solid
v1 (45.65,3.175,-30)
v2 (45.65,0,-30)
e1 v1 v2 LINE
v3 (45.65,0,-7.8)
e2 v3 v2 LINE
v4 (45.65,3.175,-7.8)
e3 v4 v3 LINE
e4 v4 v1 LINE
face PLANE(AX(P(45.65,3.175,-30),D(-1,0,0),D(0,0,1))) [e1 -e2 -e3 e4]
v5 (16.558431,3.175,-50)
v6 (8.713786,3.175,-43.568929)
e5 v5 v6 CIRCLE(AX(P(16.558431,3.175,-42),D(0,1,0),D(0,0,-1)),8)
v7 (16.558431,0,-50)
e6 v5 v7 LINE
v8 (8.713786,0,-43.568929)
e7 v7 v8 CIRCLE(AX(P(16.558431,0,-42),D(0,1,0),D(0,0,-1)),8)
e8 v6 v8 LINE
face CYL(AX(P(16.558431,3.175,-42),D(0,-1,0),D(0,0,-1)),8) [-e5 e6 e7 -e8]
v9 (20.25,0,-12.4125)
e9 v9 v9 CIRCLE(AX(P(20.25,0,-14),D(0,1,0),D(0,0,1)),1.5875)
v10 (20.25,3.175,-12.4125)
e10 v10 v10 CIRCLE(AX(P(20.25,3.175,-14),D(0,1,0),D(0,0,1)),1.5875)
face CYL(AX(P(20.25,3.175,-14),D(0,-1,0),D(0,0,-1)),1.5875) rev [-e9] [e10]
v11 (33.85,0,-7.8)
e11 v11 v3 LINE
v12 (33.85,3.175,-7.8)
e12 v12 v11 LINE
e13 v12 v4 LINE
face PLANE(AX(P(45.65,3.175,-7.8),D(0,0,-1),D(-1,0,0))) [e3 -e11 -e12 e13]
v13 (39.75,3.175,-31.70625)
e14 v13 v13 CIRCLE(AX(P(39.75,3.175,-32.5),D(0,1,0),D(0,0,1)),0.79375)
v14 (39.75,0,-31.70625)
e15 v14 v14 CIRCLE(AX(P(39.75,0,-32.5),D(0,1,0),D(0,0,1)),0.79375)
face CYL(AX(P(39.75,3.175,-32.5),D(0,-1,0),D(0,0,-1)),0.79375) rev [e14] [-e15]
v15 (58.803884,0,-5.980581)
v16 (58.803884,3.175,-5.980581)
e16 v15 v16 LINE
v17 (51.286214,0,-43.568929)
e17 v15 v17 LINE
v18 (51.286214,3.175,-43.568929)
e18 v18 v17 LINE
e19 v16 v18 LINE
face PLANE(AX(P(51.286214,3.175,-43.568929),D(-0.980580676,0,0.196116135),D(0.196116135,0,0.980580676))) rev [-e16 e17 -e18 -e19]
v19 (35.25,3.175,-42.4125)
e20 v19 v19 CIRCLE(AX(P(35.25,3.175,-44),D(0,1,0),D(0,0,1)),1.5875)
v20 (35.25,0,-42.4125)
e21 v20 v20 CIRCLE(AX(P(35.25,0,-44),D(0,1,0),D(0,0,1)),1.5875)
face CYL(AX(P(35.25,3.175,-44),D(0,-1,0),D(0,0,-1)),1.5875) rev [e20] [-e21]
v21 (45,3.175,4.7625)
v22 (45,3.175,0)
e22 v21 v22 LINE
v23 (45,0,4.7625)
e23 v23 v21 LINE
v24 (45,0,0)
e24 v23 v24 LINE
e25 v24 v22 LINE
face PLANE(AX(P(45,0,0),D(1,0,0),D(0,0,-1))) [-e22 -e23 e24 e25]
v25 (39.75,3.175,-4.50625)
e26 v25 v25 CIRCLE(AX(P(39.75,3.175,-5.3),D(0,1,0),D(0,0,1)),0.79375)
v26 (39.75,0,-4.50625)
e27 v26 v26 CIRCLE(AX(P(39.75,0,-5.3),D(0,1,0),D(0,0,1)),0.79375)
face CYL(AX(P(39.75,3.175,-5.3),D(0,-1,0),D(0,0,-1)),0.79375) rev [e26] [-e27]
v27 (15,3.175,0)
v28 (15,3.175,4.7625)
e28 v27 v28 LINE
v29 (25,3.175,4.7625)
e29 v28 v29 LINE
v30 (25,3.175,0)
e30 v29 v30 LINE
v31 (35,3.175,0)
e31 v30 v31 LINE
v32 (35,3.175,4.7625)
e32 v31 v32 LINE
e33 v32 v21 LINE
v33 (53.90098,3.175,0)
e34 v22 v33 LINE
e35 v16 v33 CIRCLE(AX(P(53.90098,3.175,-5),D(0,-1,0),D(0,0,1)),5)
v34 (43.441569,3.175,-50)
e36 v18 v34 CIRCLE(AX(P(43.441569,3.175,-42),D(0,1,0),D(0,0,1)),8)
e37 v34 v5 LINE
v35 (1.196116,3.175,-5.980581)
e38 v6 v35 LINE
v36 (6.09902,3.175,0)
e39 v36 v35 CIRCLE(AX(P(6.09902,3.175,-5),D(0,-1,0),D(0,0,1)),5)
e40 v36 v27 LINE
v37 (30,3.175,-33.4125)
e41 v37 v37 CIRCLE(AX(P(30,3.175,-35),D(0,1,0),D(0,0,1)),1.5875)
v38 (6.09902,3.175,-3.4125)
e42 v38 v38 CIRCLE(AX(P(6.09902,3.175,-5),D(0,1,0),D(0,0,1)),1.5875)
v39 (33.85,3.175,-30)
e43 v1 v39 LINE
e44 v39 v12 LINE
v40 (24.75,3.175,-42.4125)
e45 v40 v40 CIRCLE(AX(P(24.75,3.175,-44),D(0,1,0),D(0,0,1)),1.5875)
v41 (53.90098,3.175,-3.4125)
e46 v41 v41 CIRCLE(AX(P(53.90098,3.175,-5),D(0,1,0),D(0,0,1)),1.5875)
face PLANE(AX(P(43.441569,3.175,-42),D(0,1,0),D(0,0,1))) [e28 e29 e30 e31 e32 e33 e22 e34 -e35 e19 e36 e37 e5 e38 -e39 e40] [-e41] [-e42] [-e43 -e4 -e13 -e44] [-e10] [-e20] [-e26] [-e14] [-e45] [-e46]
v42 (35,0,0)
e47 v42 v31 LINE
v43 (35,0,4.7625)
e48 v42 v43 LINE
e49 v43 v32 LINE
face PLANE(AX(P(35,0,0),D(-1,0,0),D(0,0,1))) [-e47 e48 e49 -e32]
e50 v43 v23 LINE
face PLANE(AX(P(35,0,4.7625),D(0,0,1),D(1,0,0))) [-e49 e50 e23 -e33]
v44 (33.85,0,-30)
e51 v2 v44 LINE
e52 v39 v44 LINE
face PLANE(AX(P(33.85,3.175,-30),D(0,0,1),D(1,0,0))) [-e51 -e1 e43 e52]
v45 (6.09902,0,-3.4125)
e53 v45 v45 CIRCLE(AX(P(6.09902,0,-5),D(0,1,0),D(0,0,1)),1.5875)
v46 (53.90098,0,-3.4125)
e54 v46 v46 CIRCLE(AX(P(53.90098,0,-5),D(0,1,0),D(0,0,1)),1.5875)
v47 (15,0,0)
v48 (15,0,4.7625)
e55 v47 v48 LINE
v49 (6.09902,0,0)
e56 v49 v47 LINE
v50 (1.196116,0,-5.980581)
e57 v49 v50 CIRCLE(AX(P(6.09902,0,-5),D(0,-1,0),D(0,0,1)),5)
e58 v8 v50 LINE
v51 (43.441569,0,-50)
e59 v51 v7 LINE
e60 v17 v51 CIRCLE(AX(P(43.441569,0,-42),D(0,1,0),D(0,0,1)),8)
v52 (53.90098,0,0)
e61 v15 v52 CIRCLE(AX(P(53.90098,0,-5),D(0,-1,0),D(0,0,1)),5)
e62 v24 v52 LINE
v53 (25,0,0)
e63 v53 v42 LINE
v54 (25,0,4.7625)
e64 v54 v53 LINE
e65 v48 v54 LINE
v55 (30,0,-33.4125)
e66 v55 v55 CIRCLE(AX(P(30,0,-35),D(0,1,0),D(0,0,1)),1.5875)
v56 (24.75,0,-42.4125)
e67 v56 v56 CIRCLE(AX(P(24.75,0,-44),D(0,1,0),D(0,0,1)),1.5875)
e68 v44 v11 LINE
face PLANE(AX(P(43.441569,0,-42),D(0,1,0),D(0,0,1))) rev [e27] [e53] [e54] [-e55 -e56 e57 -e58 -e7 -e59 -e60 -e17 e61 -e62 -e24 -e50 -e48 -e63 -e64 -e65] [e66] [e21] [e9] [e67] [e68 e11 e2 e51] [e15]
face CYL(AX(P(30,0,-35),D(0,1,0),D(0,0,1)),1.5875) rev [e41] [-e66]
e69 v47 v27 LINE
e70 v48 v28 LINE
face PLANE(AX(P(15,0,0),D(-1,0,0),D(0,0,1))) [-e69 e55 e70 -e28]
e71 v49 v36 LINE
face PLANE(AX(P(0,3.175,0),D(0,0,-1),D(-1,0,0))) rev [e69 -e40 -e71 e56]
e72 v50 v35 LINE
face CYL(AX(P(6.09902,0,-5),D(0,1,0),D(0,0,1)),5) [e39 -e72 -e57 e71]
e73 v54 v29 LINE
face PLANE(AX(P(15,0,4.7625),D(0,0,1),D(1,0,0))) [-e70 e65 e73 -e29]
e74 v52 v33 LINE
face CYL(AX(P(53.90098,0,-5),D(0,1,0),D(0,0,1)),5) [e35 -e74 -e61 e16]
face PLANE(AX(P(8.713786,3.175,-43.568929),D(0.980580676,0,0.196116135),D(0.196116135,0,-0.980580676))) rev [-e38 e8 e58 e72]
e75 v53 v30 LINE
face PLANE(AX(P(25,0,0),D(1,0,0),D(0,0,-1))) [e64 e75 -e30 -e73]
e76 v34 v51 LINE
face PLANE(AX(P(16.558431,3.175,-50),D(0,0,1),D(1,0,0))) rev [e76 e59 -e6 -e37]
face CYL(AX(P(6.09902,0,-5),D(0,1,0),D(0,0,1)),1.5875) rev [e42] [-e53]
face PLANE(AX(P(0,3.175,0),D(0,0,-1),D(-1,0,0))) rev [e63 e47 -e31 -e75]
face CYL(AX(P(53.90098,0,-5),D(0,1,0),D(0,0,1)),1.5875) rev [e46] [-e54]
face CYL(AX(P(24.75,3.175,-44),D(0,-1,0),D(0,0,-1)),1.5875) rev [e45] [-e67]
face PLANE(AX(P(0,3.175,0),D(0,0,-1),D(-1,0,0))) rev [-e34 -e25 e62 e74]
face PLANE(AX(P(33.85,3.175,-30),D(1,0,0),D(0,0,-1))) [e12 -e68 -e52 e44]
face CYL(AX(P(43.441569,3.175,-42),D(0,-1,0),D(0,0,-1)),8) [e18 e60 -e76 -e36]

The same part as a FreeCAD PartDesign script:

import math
import FreeCAD as App
import Part
import Sketcher


def add_polygon(sketch, points):
    """Adds a closed chain of lines whose ends are joined by coincident constraints."""
    first, n = sketch.GeometryCount, len(points)
    for a, b in zip(points, points[1:] + points[:1]):
        sketch.addGeometry(Part.LineSegment(App.Vector(*a, 0), App.Vector(*b, 0)), False)
    for i in range(n):
        sketch.addConstraint(Sketcher.Constraint("Coincident", first + i, 2, first + (i + 1) % n, 1))

doc = App.newDocument("Part")
body = doc.addObject("PartDesign::Body", "Body")

sketch1 = doc.addObject("Sketcher::SketchObject", "Sketch")
body.addObject(sketch1)
sketch1.AttachmentSupport = (doc.XZ_Plane, [""])
sketch1.MapMode = "FlatFace"
sketch1.addGeometry(Part.LineSegment(App.Vector(8.7, -43.6, 0), App.Vector(0, 0, 0)), False)
sketch1.addGeometry(Part.LineSegment(App.Vector(0, 0, 0), App.Vector(60, 0, 0)), False)
sketch1.addGeometry(Part.LineSegment(App.Vector(60, 0, 0), App.Vector(51.3, -43.6, 0)), False)
sketch1.addGeometry(Part.ArcOfCircle(Part.Circle(App.Vector(43.4, -42, 0), App.Vector(0, 0, 1), 8), math.radians(-90), math.radians(-11)), False)
sketch1.addGeometry(Part.LineSegment(App.Vector(43.4, -50, 0), App.Vector(16.6, -50, 0)), False)
sketch1.addGeometry(Part.ArcOfCircle(Part.Circle(App.Vector(16.6, -42, 0), App.Vector(0, 0, 1), 8), math.radians(-169), math.radians(-90)), False)
sketch1.addGeometry(Part.Circle(App.Vector(20.2, -14, 0), App.Vector(0, 0, 1), 1.6), False)
sketch1.addGeometry(Part.Circle(App.Vector(39.8, -5.3, 0), App.Vector(0, 0, 1), 0.8), False)
add_polygon(sketch1, [(45.6, -7.8), (33.9, -7.8), (33.9, -30), (45.6, -30)])
sketch1.addGeometry(Part.Circle(App.Vector(24.8, -44, 0), App.Vector(0, 0, 1), 1.6), False)
sketch1.addGeometry(Part.Circle(App.Vector(39.8, -32.5, 0), App.Vector(0, 0, 1), 0.8), False)
sketch1.addGeometry(Part.Circle(App.Vector(35.2, -44, 0), App.Vector(0, 0, 1), 1.6), False)
sketch1.addConstraint([
    Sketcher.Constraint("Coincident", 0, 2, 1, 1),
    Sketcher.Constraint("Coincident", 1, 2, 2, 1),
    Sketcher.Constraint("Tangent", 2, 2, 3, 2),
    Sketcher.Constraint("Tangent", 3, 1, 4, 1),
    Sketcher.Constraint("Tangent", 4, 2, 5, 2),
    Sketcher.Constraint("Tangent", 5, 1, 0, 1),
    Sketcher.Constraint("Horizontal", 1),
    Sketcher.Constraint("Horizontal", 4),
    Sketcher.Constraint("Horizontal", 8),
    Sketcher.Constraint("Vertical", 9),
    Sketcher.Constraint("Horizontal", 10),
    Sketcher.Constraint("Vertical", 11),
    Sketcher.Constraint("Coincident", 0, 2, -1, 1),
    Sketcher.Constraint("Equal", 3, 5),
    Sketcher.Constraint("Equal", 6, 12),
    Sketcher.Constraint("Equal", 7, 13),
    Sketcher.Constraint("Equal", 12, 14),
    Sketcher.Constraint("Horizontal", 12, 3, 14, 3),
    Sketcher.Constraint("Horizontal", 2, 2, 5, 1),
    Sketcher.Constraint("Vertical", 7, 3, 13, 3),
    Sketcher.Constraint("Radius", 3, 8.0),
    Sketcher.Constraint("DistanceX", 1, 1, 1, 2, 60.0),
    Sketcher.Constraint("Diameter", 6, 3.175),
    Sketcher.Constraint("DistanceX", 8, 2, 8, 1, 11.8),
    Sketcher.Constraint("DistanceY", 9, 2, 9, 1, 22.2),
    Sketcher.Constraint("DistanceY", 3, 3, -1, 1, 42.0),
    Sketcher.Constraint("DistanceY", 6, 3, -1, 1, 14.0),
    Sketcher.Constraint("DistanceY", 12, 3, -1, 1, 44.0),
    Sketcher.Constraint("DistanceY", 9, 2, -1, 1, 30.0),
    Sketcher.Constraint("DistanceX", 12, 3, 7, 3, 15.0),
    Sketcher.Constraint("DistanceX", 6, 3, 14, 3, 15.0),
    Sketcher.Constraint("Diameter", 7, 1.5875),
    Sketcher.Constraint("DistanceY", 7, 3, -1, 1, 5.3),
    Sketcher.Constraint("DistanceY", 13, 3, -1, 1, 32.5),
    Sketcher.Constraint("DistanceX", 6, 3, 7, 3, 19.5),
    Sketcher.Constraint("DistanceX", 8, 2, 7, 3, 5.9),
    Sketcher.Constraint("DistanceX", -1, 1, 6, 3, 20.25),
    Sketcher.Constraint("DistanceX", 4, 2, 4, 1, 26.883138),
])
pad1 = doc.addObject("PartDesign::Pad", "Pad")
body.addObject(pad1)
pad1.Profile = sketch1
pad1.Length = 3.175
pad1.Reversed = True

sketch2 = doc.addObject("Sketcher::SketchObject", "Sketch001")
body.addObject(sketch2)
sketch2.AttachmentSupport = (doc.XZ_Plane, [""])
sketch2.MapMode = "FlatFace"
sketch2.AttachmentOffset = App.Placement(App.Vector(0, 0, -3.175), App.Rotation())
sketch2.addGeometry([
    Part.Circle(App.Vector(30, -35, 0), App.Vector(0, 0, 1), 1.6),
    Part.Circle(App.Vector(6.1, -5, 0), App.Vector(0, 0, 1), 1.6),
    Part.Circle(App.Vector(53.9, -5, 0), App.Vector(0, 0, 1), 1.6),
    Part.LineSegment(App.Vector(53.9, 0, 0), App.Vector(60, 0, 0)),
    Part.LineSegment(App.Vector(60, 0, 0), App.Vector(58.8, -6, 0)),
    Part.ArcOfCircle(Part.Circle(App.Vector(53.9, -5, 0), App.Vector(0, 0, 1), 5), math.radians(-11), math.radians(90)),
    Part.LineSegment(App.Vector(1.2, -6, 0), App.Vector(0, 0, 0)),
    Part.LineSegment(App.Vector(0, 0, 0), App.Vector(6.1, 0, 0)),
    Part.ArcOfCircle(Part.Circle(App.Vector(6.1, -5, 0), App.Vector(0, 0, 1), 5), math.radians(90), math.radians(191)),
], False)
sketch2.addConstraint([
    Sketcher.Constraint("Coincident", 3, 2, 4, 1),
    Sketcher.Constraint("Tangent", 4, 2, 5, 1),
    Sketcher.Constraint("Tangent", 5, 2, 3, 1),
    Sketcher.Constraint("Coincident", 6, 2, 7, 1),
    Sketcher.Constraint("Tangent", 7, 2, 8, 1),
    Sketcher.Constraint("Tangent", 8, 2, 6, 1),
    Sketcher.Constraint("Horizontal", 3),
    Sketcher.Constraint("Horizontal", 7),
    Sketcher.Constraint("Coincident", 6, 2, -1, 1),
    Sketcher.Constraint("Coincident", 5, 3, 2, 3),
    Sketcher.Constraint("Coincident", 8, 3, 1, 3),
    Sketcher.Constraint("Equal", 0, 1),
    Sketcher.Constraint("Equal", 1, 2),
    Sketcher.Constraint("Equal", 5, 8),
    Sketcher.Constraint("PointOnObject", 3, 2, -1),
    Sketcher.Constraint("Horizontal", 4, 2, 8, 2),
    Sketcher.Constraint("Radius", 5, 5.0),
    Sketcher.Constraint("Diameter", 0, 3.175),
    Sketcher.Constraint("DistanceX", -1, 1, 0, 3, 30.0),
    Sketcher.Constraint("DistanceY", 0, 3, -1, 1, 35.0),
    Sketcher.Constraint("DistanceX", -1, 1, 3, 2, 60.0),
    Sketcher.Constraint("DistanceX", 3, 1, 3, 2, 6.09902),
])
pocket1 = doc.addObject("PartDesign::Pocket", "Pocket")
body.addObject(pocket1)
pocket1.Profile = sketch2
pocket1.Length = 3.175
pocket1.Reversed = True

sketch3 = doc.addObject("Sketcher::SketchObject", "Sketch002")
body.addObject(sketch3)
sketch3.AttachmentSupport = (doc.XZ_Plane, [""])
sketch3.MapMode = "FlatFace"
sketch3.AttachmentOffset = App.Placement(App.Vector(0, 0, -3.175), App.Rotation())
add_polygon(sketch3, [(15, 0), (15, 4.8), (25, 4.8), (25, 0)])
add_polygon(sketch3, [(35, 0), (35, 4.8), (45, 4.8), (45, 0)])
sketch3.addConstraint([
    Sketcher.Constraint("Vertical", 0),
    Sketcher.Constraint("Horizontal", 1),
    Sketcher.Constraint("Vertical", 2),
    Sketcher.Constraint("Horizontal", 3),
    Sketcher.Constraint("Vertical", 4),
    Sketcher.Constraint("Horizontal", 5),
    Sketcher.Constraint("Vertical", 6),
    Sketcher.Constraint("Horizontal", 7),
    Sketcher.Constraint("PointOnObject", 2, 2, -1),
    Sketcher.Constraint("PointOnObject", 6, 2, -1),
    Sketcher.Constraint("Horizontal", 1, 2, 4, 2),
    Sketcher.Constraint("Equal", 3, 5),
    Sketcher.Constraint("DistanceX", 1, 1, 1, 2, 10.0),
    Sketcher.Constraint("DistanceX", -1, 1, 0, 2, 15.0),
    Sketcher.Constraint("DistanceX", -1, 1, 4, 2, 35.0),
    Sketcher.Constraint("DistanceY", 0, 1, 0, 2, 4.7625),
])
pad2 = doc.addObject("PartDesign::Pad", "Pad001")
body.addObject(pad2)
pad2.Profile = sketch3
pad2.Length = 3.175

doc.recompute()
